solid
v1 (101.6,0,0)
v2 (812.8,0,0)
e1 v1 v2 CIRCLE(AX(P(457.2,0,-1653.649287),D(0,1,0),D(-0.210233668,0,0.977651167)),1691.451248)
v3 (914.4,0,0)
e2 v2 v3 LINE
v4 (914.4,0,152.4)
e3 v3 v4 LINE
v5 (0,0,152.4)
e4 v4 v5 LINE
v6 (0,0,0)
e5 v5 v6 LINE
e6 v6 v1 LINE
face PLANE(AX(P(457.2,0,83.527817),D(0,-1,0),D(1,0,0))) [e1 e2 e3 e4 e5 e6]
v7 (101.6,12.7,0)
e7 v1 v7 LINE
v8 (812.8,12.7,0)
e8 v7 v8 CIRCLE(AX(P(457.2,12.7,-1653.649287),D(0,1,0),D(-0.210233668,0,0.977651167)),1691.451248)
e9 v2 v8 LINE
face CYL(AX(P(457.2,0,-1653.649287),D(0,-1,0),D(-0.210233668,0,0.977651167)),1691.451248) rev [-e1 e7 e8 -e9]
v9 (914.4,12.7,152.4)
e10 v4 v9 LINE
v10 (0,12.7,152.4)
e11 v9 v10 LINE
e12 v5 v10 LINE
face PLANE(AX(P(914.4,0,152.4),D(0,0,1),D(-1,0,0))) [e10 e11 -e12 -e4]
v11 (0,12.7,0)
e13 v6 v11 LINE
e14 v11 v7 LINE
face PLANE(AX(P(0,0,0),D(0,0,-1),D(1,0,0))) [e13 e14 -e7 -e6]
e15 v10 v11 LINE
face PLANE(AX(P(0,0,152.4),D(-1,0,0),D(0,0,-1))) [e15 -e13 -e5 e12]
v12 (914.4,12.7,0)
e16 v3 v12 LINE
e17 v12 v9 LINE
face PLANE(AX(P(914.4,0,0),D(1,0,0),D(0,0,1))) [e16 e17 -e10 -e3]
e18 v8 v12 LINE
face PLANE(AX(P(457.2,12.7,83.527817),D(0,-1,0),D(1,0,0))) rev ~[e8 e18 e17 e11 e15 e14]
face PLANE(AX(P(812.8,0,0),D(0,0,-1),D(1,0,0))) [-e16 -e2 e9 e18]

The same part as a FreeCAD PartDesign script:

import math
import FreeCAD as App
import Part
import Sketcher
from FreeCAD import Vector
Q = App.Units.Quantity

doc = App.newDocument("Part")
body = doc.addObject("PartDesign::Body", "Body")

sketch1 = body.newObject("Sketcher::SketchObject", "Sketch")
sketch1.AttachmentSupport = (doc.getObject("XZ_Plane"), [""])
sketch1.MapMode = "FlatFace"
sketch1.addGeometry([
    Part.LineSegment(Vector(0, 152, 0), Vector(0, 0, 0)),
    Part.LineSegment(Vector(0, 0, 0), Vector(102, 0, 0)),
    Part.ArcOfCircle(Part.Circle(Vector(457, -1654, 0), Vector(0, 0, 1), 1691), math.radians(78), math.radians(102)),
    Part.LineSegment(Vector(813, 0, 0), Vector(914, 0, 0)),
    Part.LineSegment(Vector(914, 0, 0), Vector(914, 152, 0)),
    Part.LineSegment(Vector(914, 152, 0), Vector(0, 152, 0)),
], False)
sketch1.addConstraint([
    Sketcher.Constraint("Coincident", 0, 2, 1, 1),
    Sketcher.Constraint("Coincident", 1, 2, 2, 2),
    Sketcher.Constraint("Coincident", 2, 1, 3, 1),
    Sketcher.Constraint("Coincident", 3, 2, 4, 1),
    Sketcher.Constraint("Coincident", 4, 2, 5, 1),
    Sketcher.Constraint("Coincident", 5, 2, 0, 1),
    Sketcher.Constraint("Vertical", 0),
    Sketcher.Constraint("Horizontal", 1),
    Sketcher.Constraint("Horizontal", 3),
    Sketcher.Constraint("Vertical", 4),
    Sketcher.Constraint("Horizontal", 5),
    Sketcher.Constraint("Coincident", 0, 2, -1, 1),
    Sketcher.Constraint("PointOnObject", 3, 2, -1),
    Sketcher.Constraint("Equal", 1, 3),
    Sketcher.Constraint("DistanceX", 1, 1, 1, 2, Q("4 in")),
    Sketcher.Constraint("DistanceX", 5, 2, 5, 1, Q("36 in")),
    Sketcher.Constraint("DistanceY", 0, 2, 0, 1, Q("6 in")),
    Sketcher.Constraint("Radius", 2, Q("1691.451248 mm")),
])
pad1 = body.newObject("PartDesign::Pad", "Pad")
pad1.Profile = sketch1
pad1.Length = Q("0.5 in")
pad1.Reversed = True

doc.recompute()
